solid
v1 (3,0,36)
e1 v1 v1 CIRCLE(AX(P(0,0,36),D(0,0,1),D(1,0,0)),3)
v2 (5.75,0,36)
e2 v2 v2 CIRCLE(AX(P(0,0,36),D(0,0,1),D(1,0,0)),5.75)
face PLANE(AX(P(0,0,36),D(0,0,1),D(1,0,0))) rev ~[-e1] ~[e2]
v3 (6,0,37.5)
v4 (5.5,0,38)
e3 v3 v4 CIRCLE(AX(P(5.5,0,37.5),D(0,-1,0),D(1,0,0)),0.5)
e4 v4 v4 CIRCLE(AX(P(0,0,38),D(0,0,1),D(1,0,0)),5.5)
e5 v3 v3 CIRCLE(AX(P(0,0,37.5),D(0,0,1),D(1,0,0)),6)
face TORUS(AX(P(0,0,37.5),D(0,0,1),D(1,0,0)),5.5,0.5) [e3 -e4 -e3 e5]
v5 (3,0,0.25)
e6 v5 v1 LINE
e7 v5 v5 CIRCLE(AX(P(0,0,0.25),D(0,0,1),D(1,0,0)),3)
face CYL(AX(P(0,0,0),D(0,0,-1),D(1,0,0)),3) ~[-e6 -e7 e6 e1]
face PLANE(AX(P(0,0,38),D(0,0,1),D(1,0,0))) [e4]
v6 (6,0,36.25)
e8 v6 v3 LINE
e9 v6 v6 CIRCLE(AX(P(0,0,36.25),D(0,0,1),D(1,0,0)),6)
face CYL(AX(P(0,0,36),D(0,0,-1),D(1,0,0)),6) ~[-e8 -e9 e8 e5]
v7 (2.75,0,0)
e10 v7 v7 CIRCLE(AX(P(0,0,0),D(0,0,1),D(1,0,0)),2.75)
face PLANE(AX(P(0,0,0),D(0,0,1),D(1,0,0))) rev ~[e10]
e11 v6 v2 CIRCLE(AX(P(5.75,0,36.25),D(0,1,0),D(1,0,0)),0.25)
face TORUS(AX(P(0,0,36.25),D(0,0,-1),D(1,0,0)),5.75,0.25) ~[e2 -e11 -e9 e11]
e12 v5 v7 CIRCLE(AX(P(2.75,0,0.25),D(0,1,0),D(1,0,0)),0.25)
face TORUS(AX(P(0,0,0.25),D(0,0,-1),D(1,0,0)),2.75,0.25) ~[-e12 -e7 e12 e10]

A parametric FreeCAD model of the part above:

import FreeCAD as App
import Part
import Sketcher

V = App.Vector


def edges_at(feature, points):
    """Names of the edges that pass closest to the given points."""
    edges = feature.Shape.Edges
    near = lambda p: min(range(len(edges)), key=lambda i: edges[i].distToShape(Part.Vertex(*p))[0])
    return sorted({f"Edge{near(p) + 1}" for p in points})

doc = App.newDocument("Part")
params = doc.addObject("Spreadsheet::Sheet", "Params")
for row, (alias, value) in enumerate([
    ("sketch1_diameter", "6 mm"),
    ("pad1_length", "36 mm"),
    ("sketch2_diameter", "12 mm"),
    ("pad2_length", "2 mm"),
    ("fillet_radius", "0.5 mm"),
    ("fillet2_radius", "0.25 mm"),
], start=1):
    params.set(f"A{row}", alias)
    params.set(f"B{row}", "=" + value)
    params.setAlias(f"B{row}", alias)

body = doc.addObject("PartDesign::Body", "Body")

sketch1 = body.newObject("Sketcher::SketchObject", "Sketch")
sketch1.AttachmentSupport = (doc.getObject("XY_Plane"), [""])
sketch1.MapMode = "FlatFace"
sketch1.addGeometry(Part.Circle(V(0, 0, 0), V(0, 0, 1), 3), False)
sketch1.addConstraint([
    Sketcher.Constraint("Coincident", 0, 3, -1, 1),
    Sketcher.Constraint("Diameter", 0, 6.0),
])
sketch1.setExpression("Constraints[1]", "Params.sketch1_diameter")
pad1 = body.newObject("PartDesign::Pad", "Pad")
pad1.Profile = sketch1
pad1.setExpression("Length", "Params.pad1_length")

sketch2 = body.newObject("Sketcher::SketchObject", "Sketch001")
sketch2.AttachmentSupport = (doc.getObject("XY_Plane"), [""])
sketch2.MapMode = "FlatFace"
sketch2.AttachmentOffset = App.Placement(V(0, 0, 36), App.Rotation())
sketch2.addGeometry(Part.Circle(V(0, 0, 0), V(0, 0, 1), 6), False)
sketch2.addConstraint([
    Sketcher.Constraint("Coincident", 0, 3, -1, 1),
    Sketcher.Constraint("Diameter", 0, 12.0),
])
sketch2.setExpression("Constraints[1]", "Params.sketch2_diameter")
pad2 = body.newObject("PartDesign::Pad", "Pad001")
pad2.Profile = sketch2
pad2.setExpression("Length", "Params.pad2_length")
doc.recompute()

fillet = body.newObject("PartDesign::Fillet", "Fillet")
fillet.Base = (pad2, edges_at(pad2, [(-6, 0, 38)]))
fillet.setExpression("Radius", "Params.fillet_radius")
doc.recompute()

fillet2 = body.newObject("PartDesign::Fillet", "Fillet001")
fillet2.Base = (fillet, edges_at(fillet, [(-6, 0, 36), (-3, 0, 0)]))
fillet2.setExpression("Radius", "Params.fillet2_radius")

doc.recompute()
